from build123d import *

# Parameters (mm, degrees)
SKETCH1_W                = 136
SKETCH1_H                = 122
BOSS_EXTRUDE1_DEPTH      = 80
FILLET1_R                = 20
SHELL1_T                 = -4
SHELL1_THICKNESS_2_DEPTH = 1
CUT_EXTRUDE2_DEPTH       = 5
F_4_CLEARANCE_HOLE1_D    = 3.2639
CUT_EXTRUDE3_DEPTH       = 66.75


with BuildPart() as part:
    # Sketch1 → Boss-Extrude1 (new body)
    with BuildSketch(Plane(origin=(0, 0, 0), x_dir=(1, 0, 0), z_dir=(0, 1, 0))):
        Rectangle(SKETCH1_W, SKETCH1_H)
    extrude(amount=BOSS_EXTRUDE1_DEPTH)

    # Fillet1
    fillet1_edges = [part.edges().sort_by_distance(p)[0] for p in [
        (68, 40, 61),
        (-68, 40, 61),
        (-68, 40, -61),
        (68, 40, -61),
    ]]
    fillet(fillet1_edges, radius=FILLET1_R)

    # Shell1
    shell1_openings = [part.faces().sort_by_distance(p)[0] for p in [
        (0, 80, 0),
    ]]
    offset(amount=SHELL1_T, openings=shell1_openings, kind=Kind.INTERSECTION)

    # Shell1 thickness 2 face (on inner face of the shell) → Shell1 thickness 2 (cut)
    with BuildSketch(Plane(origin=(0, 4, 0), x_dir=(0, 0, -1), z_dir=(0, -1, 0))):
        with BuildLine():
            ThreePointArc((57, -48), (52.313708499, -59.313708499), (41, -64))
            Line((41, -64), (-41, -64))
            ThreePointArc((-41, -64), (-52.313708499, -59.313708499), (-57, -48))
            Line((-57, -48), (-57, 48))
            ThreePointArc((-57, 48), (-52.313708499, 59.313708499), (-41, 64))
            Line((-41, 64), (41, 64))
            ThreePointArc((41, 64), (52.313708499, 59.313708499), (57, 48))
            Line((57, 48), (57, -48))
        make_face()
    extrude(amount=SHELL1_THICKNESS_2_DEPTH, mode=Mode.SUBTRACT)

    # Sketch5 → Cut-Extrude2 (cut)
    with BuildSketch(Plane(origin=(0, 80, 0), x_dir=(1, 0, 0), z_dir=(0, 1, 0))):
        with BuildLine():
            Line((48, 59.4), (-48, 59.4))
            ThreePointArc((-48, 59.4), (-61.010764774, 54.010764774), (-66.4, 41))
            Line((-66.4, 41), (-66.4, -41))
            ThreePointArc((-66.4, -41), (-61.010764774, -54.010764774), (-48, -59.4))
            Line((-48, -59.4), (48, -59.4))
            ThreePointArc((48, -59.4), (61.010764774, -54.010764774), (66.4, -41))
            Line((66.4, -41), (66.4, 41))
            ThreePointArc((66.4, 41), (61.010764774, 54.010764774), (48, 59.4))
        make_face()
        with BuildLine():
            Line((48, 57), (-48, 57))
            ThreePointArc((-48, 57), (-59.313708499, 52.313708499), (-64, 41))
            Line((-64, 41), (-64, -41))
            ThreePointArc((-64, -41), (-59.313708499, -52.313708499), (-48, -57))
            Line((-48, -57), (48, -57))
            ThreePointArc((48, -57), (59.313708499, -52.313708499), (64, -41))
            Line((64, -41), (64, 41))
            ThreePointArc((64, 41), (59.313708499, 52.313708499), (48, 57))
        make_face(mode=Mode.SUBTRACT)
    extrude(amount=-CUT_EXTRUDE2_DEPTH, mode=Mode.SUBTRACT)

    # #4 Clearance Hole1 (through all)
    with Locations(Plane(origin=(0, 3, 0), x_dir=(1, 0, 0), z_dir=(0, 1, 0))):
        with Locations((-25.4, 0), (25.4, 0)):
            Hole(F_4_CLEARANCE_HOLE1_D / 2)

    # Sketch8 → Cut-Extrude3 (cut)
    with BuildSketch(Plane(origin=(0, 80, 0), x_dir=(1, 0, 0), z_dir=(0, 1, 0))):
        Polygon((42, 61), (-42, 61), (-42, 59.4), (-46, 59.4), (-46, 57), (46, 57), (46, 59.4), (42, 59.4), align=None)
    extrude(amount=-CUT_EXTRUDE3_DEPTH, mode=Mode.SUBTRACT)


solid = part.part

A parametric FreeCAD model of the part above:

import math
import FreeCAD as App
import Part
import Sketcher

V = App.Vector
Q = App.Units.Quantity


def edges_at(feature, points):
    """Names of the edges that pass closest to the given points."""
    edges = feature.Shape.Edges
    near = lambda p: min(range(len(edges)), key=lambda i: edges[i].distToShape(Part.Vertex(*p))[0])
    return sorted({f"Edge{near(p) + 1}" for p in points})


def faces_at(feature, points):
    """Names of the faces that lie closest to the given points."""
    faces = feature.Shape.Faces
    near = lambda p: min(range(len(faces)), key=lambda i: faces[i].distToShape(Part.Vertex(*p))[0])
    return sorted({f"Face{near(p) + 1}" for p in points})


def add_polygon(sketch, points):
    """Adds a closed chain of lines whose ends are joined by coincident constraints."""
    first, n = sketch.GeometryCount, len(points)
    for a, b in zip(points, points[1:] + points[:1]):
        sketch.addGeometry(Part.LineSegment(App.Vector(*a, 0), App.Vector(*b, 0)), False)
    for i in range(n):
        sketch.addConstraint(Sketcher.Constraint("Coincident", first + i, 2, first + (i + 1) % n, 1))

doc = App.newDocument("Part")
params = doc.addObject("Spreadsheet::Sheet", "Params")
for row, (alias, value) in enumerate([
    ("sketch1_width", "136 mm"),
    ("sketch1_height", "122 mm"),
    ("pad1_length", "80 mm"),
    ("fillet_radius", "20 mm"),
    ("thickness_wall", "4 mm"),
    ("sketch2_radius", "16 mm"),
    ("sketch2_width", "96 mm"),
    ("sketch2_height", "82 mm"),
    ("pocket1_length", "1 mm"),
    ("sketch3_radius", "16 mm"),
    ("sketch3_radius2", "18.4 mm"),
    ("sketch3_width", "96 mm"),
    ("sketch3_height", "82 mm"),
    ("pocket2_length", "5 mm"),
    ("hole_diameter", "3.2639 mm"),
    ("sketch5_width", "84 mm"),
    ("sketch5_width2", "4 mm"),
    ("sketch5_height", "1.6 mm"),
    ("sketch5_height2", "2.4 mm"),
    ("pocket3_length", "66.75 mm"),
], start=1):
    params.set(f"A{row}", alias)
    params.set(f"B{row}", "=" + value)
    params.setAlias(f"B{row}", alias)

body = doc.addObject("PartDesign::Body", "Body")

sketch1 = doc.addObject("Sketcher::SketchObject", "Sketch")
body.addObject(sketch1)
sketch1.AttachmentSupport = (doc.XZ_Plane, [""])
sketch1.MapMode = "FlatFace"
add_polygon(sketch1, [(-68, -61), (-68, 61), (68, 61), (68, -61)])
sketch1.addConstraint(Sketcher.Constraint("Vertical", 0))
sketch1.addConstraint(Sketcher.Constraint("Horizontal", 1))
sketch1.addConstraint(Sketcher.Constraint("Vertical", 2))
sketch1.addConstraint(Sketcher.Constraint("Horizontal", 3))
sketch1.addConstraint(Sketcher.Constraint("Symmetric", 0, 2, 2, 2, -1, 1))
sketch1.addConstraint(Sketcher.Constraint("DistanceX", 1, 1, 1, 2, Q("136 mm")))
sketch1.addConstraint(Sketcher.Constraint("DistanceY", 0, 1, 0, 2, Q("122 mm")))
sketch1.setExpression("Constraints[9]", "Params.sketch1_width")
sketch1.setExpression("Constraints[10]", "Params.sketch1_height")
pad1 = doc.addObject("PartDesign::Pad", "Pad")
body.addObject(pad1)
pad1.Profile = sketch1
pad1.setExpression("Length", "Params.pad1_length")
pad1.Reversed = True
doc.recompute()

fillet = doc.addObject("PartDesign::Fillet", "Fillet")
body.addObject(fillet)
fillet.Base = (pad1, edges_at(pad1, [
    (68, 40, 61),
    (-68, 40, 61),
    (-68, 40, -61),
    (68, 40, -61),
]))
fillet.setExpression("Radius", "Params.fillet_radius")
doc.recompute()

thickness = doc.addObject("PartDesign::Thickness", "Thickness")
body.addObject(thickness)
thickness.Base = (fillet, faces_at(fillet, [(0, 80, 0)]))
thickness.setExpression("Value", "Params.thickness_wall")
thickness.Reversed = True
thickness.Join = "Intersection"

sketch2 = doc.addObject("Sketcher::SketchObject", "Sketch001")
body.addObject(sketch2)
sketch2.AttachmentSupport = (doc.XZ_Plane, [""])
sketch2.MapMode = "FlatFace"
sketch2.AttachmentOffset = App.Placement(V(0, 0, -4), App.Rotation())
sketch2.addGeometry(Part.ArcOfCircle(Part.Circle(V(-48, -41, 0), V(0, 0, 1), 16), math.radians(180), math.radians(270)), False)
sketch2.addGeometry(Part.LineSegment(V(-48, -57, 0), V(48, -57, 0)), False)
sketch2.addGeometry(Part.ArcOfCircle(Part.Circle(V(48, -41, 0), V(0, 0, 1), 16), math.radians(-90), math.radians(0)), False)
sketch2.addGeometry(Part.LineSegment(V(64, -41, 0), V(64, 41, 0)), False)
sketch2.addGeometry(Part.ArcOfCircle(Part.Circle(V(48, 41, 0), V(0, 0, 1), 16), math.radians(0), math.radians(90)), False)
sketch2.addGeometry(Part.LineSegment(V(48, 57, 0), V(-48, 57, 0)), False)
sketch2.addGeometry(Part.ArcOfCircle(Part.Circle(V(-48, 41, 0), V(0, 0, 1), 16), math.radians(90), math.radians(180)), False)
sketch2.addGeometry(Part.LineSegment(V(-64, 41, 0), V(-64, -41, 0)), False)
sketch2.addConstraint(Sketcher.Constraint("Tangent", 0, 2, 1, 1))
sketch2.addConstraint(Sketcher.Constraint("Tangent", 1, 2, 2, 1))
sketch2.addConstraint(Sketcher.Constraint("Tangent", 2, 2, 3, 1))
sketch2.addConstraint(Sketcher.Constraint("Tangent", 3, 2, 4, 1))
sketch2.addConstraint(Sketcher.Constraint("Tangent", 4, 2, 5, 1))
sketch2.addConstraint(Sketcher.Constraint("Tangent", 5, 2, 6, 1))
sketch2.addConstraint(Sketcher.Constraint("Tangent", 6, 2, 7, 1))
sketch2.addConstraint(Sketcher.Constraint("Tangent", 7, 2, 0, 1))
sketch2.addConstraint(Sketcher.Constraint("Horizontal", 1))
sketch2.addConstraint(Sketcher.Constraint("Vertical", 3))
sketch2.addConstraint(Sketcher.Constraint("Horizontal", 5))
sketch2.addConstraint(Sketcher.Constraint("Vertical", 7))
sketch2.addConstraint(Sketcher.Constraint("Equal", 0, 2))
sketch2.addConstraint(Sketcher.Constraint("Equal", 2, 4))
sketch2.addConstraint(Sketcher.Constraint("Equal", 4, 6))
sketch2.addConstraint(Sketcher.Constraint("Symmetric", 0, 3, 4, 3, -1, 1))
sketch2.addConstraint(Sketcher.Constraint("Radius", 0, Q("16 mm")))
sketch2.addConstraint(Sketcher.Constraint("DistanceX", 1, 1, 1, 2, Q("96 mm")))
sketch2.addConstraint(Sketcher.Constraint("DistanceY", 3, 1, 3, 2, Q("82 mm")))
sketch2.setExpression("Constraints[16]", "Params.sketch2_radius")
sketch2.setExpression("Constraints[17]", "Params.sketch2_width")
sketch2.setExpression("Constraints[18]", "Params.sketch2_height")
pocket1 = doc.addObject("PartDesign::Pocket", "Pocket")
body.addObject(pocket1)
pocket1.Profile = sketch2
pocket1.setExpression("Length", "Params.pocket1_length")
pocket1.Reversed = True

sketch3 = doc.addObject("Sketcher::SketchObject", "Sketch002")
body.addObject(sketch3)
sketch3.AttachmentSupport = (doc.XZ_Plane, [""])
sketch3.MapMode = "FlatFace"
sketch3.AttachmentOffset = App.Placement(V(0, 0, -80), App.Rotation())
sketch3.addGeometry(Part.LineSegment(V(48, -59, 0), V(-48, -59, 0)), False)
sketch3.addGeometry(Part.ArcOfCircle(Part.Circle(V(-48, -41, 0), V(0, 0, 1), 18), math.radians(180), math.radians(270)), False)
sketch3.addGeometry(Part.LineSegment(V(-66, -41, 0), V(-66, 41, 0)), False)
sketch3.addGeometry(Part.ArcOfCircle(Part.Circle(V(-48, 41, 0), V(0, 0, 1), 18), math.radians(90), math.radians(180)), False)
sketch3.addGeometry(Part.LineSegment(V(-48, 59, 0), V(48, 59, 0)), False)
sketch3.addGeometry(Part.ArcOfCircle(Part.Circle(V(48, 41, 0), V(0, 0, 1), 18), math.radians(0), math.radians(90)), False)
sketch3.addGeometry(Part.LineSegment(V(66, 41, 0), V(66, -41, 0)), False)
sketch3.addGeometry(Part.ArcOfCircle(Part.Circle(V(48, -41, 0), V(0, 0, 1), 18), math.radians(-90), math.radians(0)), False)
sketch3.addGeometry(Part.LineSegment(V(-48, -57, 0), V(48, -57, 0)), False)
sketch3.addGeometry(Part.ArcOfCircle(Part.Circle(V(48, -41, 0), V(0, 0, 1), 16), math.radians(-90), math.radians(0)), False)
sketch3.addGeometry(Part.LineSegment(V(64, -41, 0), V(64, 41, 0)), False)
sketch3.addGeometry(Part.ArcOfCircle(Part.Circle(V(48, 41, 0), V(0, 0, 1), 16), math.radians(0), math.radians(90)), False)
sketch3.addGeometry(Part.LineSegment(V(48, 57, 0), V(-48, 57, 0)), False)
sketch3.addGeometry(Part.ArcOfCircle(Part.Circle(V(-48, 41, 0), V(0, 0, 1), 16), math.radians(90), math.radians(180)), False)
sketch3.addGeometry(Part.LineSegment(V(-64, 41, 0), V(-64, -41, 0)), False)
sketch3.addGeometry(Part.ArcOfCircle(Part.Circle(V(-48, -41, 0), V(0, 0, 1), 16), math.radians(180), math.radians(270)), False)
sketch3.addConstraint(Sketcher.Constraint("Tangent", 0, 2, 1, 2))
sketch3.addConstraint(Sketcher.Constraint("Tangent", 1, 1, 2, 1))
sketch3.addConstraint(Sketcher.Constraint("Tangent", 2, 2, 3, 2))
sketch3.addConstraint(Sketcher.Constraint("Tangent", 3, 1, 4, 1))
sketch3.addConstraint(Sketcher.Constraint("Tangent", 4, 2, 5, 2))
sketch3.addConstraint(Sketcher.Constraint("Tangent", 5, 1, 6, 1))
sketch3.addConstraint(Sketcher.Constraint("Tangent", 6, 2, 7, 2))
sketch3.addConstraint(Sketcher.Constraint("Tangent", 7, 1, 0, 1))
sketch3.addConstraint(Sketcher.Constraint("Tangent", 8, 2, 9, 1))
sketch3.addConstraint(Sketcher.Constraint("Tangent", 9, 2, 10, 1))
sketch3.addConstraint(Sketcher.Constraint("Tangent", 10, 2, 11, 1))
sketch3.addConstraint(Sketcher.Constraint("Tangent", 11, 2, 12, 1))
sketch3.addConstraint(Sketcher.Constraint("Tangent", 12, 2, 13, 1))
sketch3.addConstraint(Sketcher.Constraint("Tangent", 13, 2, 14, 1))
sketch3.addConstraint(Sketcher.Constraint("Tangent", 14, 2, 15, 1))
sketch3.addConstraint(Sketcher.Constraint("Tangent", 15, 2, 8, 1))
sketch3.addConstraint(Sketcher.Constraint("Horizontal", 0))
sketch3.addConstraint(Sketcher.Constraint("Vertical", 2))
sketch3.addConstraint(Sketcher.Constraint("Horizontal", 4))
sketch3.addConstraint(Sketcher.Constraint("Vertical", 6))
sketch3.addConstraint(Sketcher.Constraint("Horizontal", 8))
sketch3.addConstraint(Sketcher.Constraint("Vertical", 10))
sketch3.addConstraint(Sketcher.Constraint("Horizontal", 12))
sketch3.addConstraint(Sketcher.Constraint("Vertical", 14))
sketch3.addConstraint(Sketcher.Constraint("Coincident", 9, 3, 7, 3))
sketch3.addConstraint(Sketcher.Constraint("Coincident", 11, 3, 5, 3))
sketch3.addConstraint(Sketcher.Constraint("Coincident", 13, 3, 3, 3))
sketch3.addConstraint(Sketcher.Constraint("Equal", 1, 3))
sketch3.addConstraint(Sketcher.Constraint("Equal", 3, 5))
sketch3.addConstraint(Sketcher.Constraint("Equal", 5, 7))
sketch3.addConstraint(Sketcher.Constraint("Equal", 13, 15))
sketch3.addConstraint(Sketcher.Constraint("Symmetric", 1, 3, 5, 3, -1, 1))
sketch3.addConstraint(Sketcher.Constraint("Radius", 9, Q("16 mm")))
sketch3.addConstraint(Sketcher.Constraint("Radius", 1, Q("18.4 mm")))
sketch3.addConstraint(Sketcher.Constraint("DistanceX", 0, 2, 0, 1, Q("96 mm")))
sketch3.addConstraint(Sketcher.Constraint("DistanceY", 2, 1, 2, 2, Q("82 mm")))
sketch3.setExpression("Constraints[32]", "Params.sketch3_radius")
sketch3.setExpression("Constraints[33]", "Params.sketch3_radius2")
sketch3.setExpression("Constraints[34]", "Params.sketch3_width")
sketch3.setExpression("Constraints[35]", "Params.sketch3_height")
pocket2 = doc.addObject("PartDesign::Pocket", "Pocket001")
body.addObject(pocket2)
pocket2.Profile = sketch3
pocket2.setExpression("Length", "Params.pocket2_length")
pocket2.Reversed = True

sketch4 = doc.addObject("Sketcher::SketchObject", "Sketch003")
body.addObject(sketch4)
sketch4.AttachmentSupport = (doc.XZ_Plane, [""])
sketch4.MapMode = "FlatFace"
sketch4.AttachmentOffset = App.Placement(V(0, 0, -3), App.Rotation())
sketch4.addGeometry(Part.Circle(V(-25.4, 0, 0), V(0, 0, 1), 1.6), False)
sketch4.addGeometry(Part.Circle(V(25.4, 0, 0), V(0, 0, 1), 1.6), False)
sketch4.addConstraint(Sketcher.Constraint("Equal", 0, 1))
sketch4.addConstraint(Sketcher.Constraint("Symmetric", 0, 3, 1, 3, -1, 1))
sketch4.addConstraint(Sketcher.Constraint("PointOnObject", 0, 3, -1))
sketch4.addConstraint(Sketcher.Constraint("Diameter", 0, Q("3.2639 mm")))
sketch4.addConstraint(Sketcher.Constraint("DistanceX", 0, 3, -1, 1, Q("25.4 mm")))
doc.recompute()
hole = doc.addObject("PartDesign::Hole", "Hole")
body.addObject(hole)
hole.Profile = sketch4
hole.ThreadType = "None"
hole.setExpression("Diameter", "Params.hole_diameter")
hole.DepthType = "ThroughAll"
hole.Reversed = True

sketch5 = doc.addObject("Sketcher::SketchObject", "Sketch004")
body.addObject(sketch5)
sketch5.AttachmentSupport = (doc.XZ_Plane, [""])
sketch5.MapMode = "FlatFace"
sketch5.AttachmentOffset = App.Placement(V(0, 0, -80), App.Rotation())
add_polygon(sketch5, [(42, -61), (-42, -61), (-42, -59.4), (-46, -59.4), (-46, -57), (46, -57), (46, -59.4), (42, -59.4)])
sketch5.addConstraint(Sketcher.Constraint("Horizontal", 0))
sketch5.addConstraint(Sketcher.Constraint("Vertical", 1))
sketch5.addConstraint(Sketcher.Constraint("Horizontal", 2))
sketch5.addConstraint(Sketcher.Constraint("Vertical", 3))
sketch5.addConstraint(Sketcher.Constraint("Horizontal", 4))
sketch5.addConstraint(Sketcher.Constraint("Vertical", 5))
sketch5.addConstraint(Sketcher.Constraint("Horizontal", 6))
sketch5.addConstraint(Sketcher.Constraint("Vertical", 7))
sketch5.addConstraint(Sketcher.Constraint("Symmetric", 2, 2, 5, 2, -2))
sketch5.addConstraint(Sketcher.Constraint("Equal", 2, 6))
sketch5.addConstraint(Sketcher.Constraint("DistanceX", 0, 2, 0, 1, Q("84 mm")))
sketch5.addConstraint(Sketcher.Constraint("DistanceX", 2, 2, 2, 1, Q("4 mm")))
sketch5.addConstraint(Sketcher.Constraint("DistanceY", 1, 1, 1, 2, Q("1.6 mm")))
sketch5.addConstraint(Sketcher.Constraint("DistanceY", 3, 1, 3, 2, Q("2.4 mm")))
sketch5.addConstraint(Sketcher.Constraint("DistanceY", 0, 2, -1, 1, Q("61 mm")))
sketch5.setExpression("Constraints[18]", "Params.sketch5_width")
sketch5.setExpression("Constraints[19]", "Params.sketch5_width2")
sketch5.setExpression("Constraints[20]", "Params.sketch5_height")
sketch5.setExpression("Constraints[21]", "Params.sketch5_height2")
pocket3 = doc.addObject("PartDesign::Pocket", "Pocket002")
body.addObject(pocket3)
pocket3.Profile = sketch5
pocket3.setExpression("Length", "Params.pocket3_length")
pocket3.Reversed = True

doc.recompute()
